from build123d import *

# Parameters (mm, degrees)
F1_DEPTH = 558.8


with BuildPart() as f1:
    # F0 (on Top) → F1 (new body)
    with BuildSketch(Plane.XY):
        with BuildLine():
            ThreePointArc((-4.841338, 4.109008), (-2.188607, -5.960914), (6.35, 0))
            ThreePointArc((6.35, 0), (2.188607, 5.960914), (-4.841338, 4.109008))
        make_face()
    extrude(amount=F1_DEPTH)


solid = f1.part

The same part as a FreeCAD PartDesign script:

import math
import FreeCAD as App
import Part
import Sketcher

V = App.Vector
Q = App.Units.Quantity

doc = App.newDocument("Part")
body = doc.addObject("PartDesign::Body", "Body")

sketch1 = body.newObject("Sketcher::SketchObject", "Sketch")
sketch1.AttachmentSupport = (doc.getObject("XY_Plane"), [""])
sketch1.MapMode = "FlatFace"
sketch1.addGeometry([
    Part.ArcOfCircle(Part.Circle(V(0, 0, 0), V(0, 0, 1), 6), math.radians(140), math.radians(360)),
    Part.ArcOfCircle(Part.Circle(V(0, 0, 0), V(0, 0, 1), 6), math.radians(0), math.radians(140)),
], False)
sketch1.addConstraint([
    Sketcher.Constraint("Tangent", 0, 1, 1, 2),
    Sketcher.Constraint("Coincident", 1, 1, 0, 2),
    Sketcher.Constraint("Coincident", 0, 3, -1, 1),
    Sketcher.Constraint("PointOnObject", 1, 1, -1),
    Sketcher.Constraint("Radius", 0, Q("0.25 in")),
    Sketcher.Constraint("DistanceX", 0, 1, -1, 1, 4.841338),
])
pad1 = body.newObject("PartDesign::Pad", "Pad")
pad1.Profile = sketch1
pad1.Length = Q("22 in")

doc.recompute()
